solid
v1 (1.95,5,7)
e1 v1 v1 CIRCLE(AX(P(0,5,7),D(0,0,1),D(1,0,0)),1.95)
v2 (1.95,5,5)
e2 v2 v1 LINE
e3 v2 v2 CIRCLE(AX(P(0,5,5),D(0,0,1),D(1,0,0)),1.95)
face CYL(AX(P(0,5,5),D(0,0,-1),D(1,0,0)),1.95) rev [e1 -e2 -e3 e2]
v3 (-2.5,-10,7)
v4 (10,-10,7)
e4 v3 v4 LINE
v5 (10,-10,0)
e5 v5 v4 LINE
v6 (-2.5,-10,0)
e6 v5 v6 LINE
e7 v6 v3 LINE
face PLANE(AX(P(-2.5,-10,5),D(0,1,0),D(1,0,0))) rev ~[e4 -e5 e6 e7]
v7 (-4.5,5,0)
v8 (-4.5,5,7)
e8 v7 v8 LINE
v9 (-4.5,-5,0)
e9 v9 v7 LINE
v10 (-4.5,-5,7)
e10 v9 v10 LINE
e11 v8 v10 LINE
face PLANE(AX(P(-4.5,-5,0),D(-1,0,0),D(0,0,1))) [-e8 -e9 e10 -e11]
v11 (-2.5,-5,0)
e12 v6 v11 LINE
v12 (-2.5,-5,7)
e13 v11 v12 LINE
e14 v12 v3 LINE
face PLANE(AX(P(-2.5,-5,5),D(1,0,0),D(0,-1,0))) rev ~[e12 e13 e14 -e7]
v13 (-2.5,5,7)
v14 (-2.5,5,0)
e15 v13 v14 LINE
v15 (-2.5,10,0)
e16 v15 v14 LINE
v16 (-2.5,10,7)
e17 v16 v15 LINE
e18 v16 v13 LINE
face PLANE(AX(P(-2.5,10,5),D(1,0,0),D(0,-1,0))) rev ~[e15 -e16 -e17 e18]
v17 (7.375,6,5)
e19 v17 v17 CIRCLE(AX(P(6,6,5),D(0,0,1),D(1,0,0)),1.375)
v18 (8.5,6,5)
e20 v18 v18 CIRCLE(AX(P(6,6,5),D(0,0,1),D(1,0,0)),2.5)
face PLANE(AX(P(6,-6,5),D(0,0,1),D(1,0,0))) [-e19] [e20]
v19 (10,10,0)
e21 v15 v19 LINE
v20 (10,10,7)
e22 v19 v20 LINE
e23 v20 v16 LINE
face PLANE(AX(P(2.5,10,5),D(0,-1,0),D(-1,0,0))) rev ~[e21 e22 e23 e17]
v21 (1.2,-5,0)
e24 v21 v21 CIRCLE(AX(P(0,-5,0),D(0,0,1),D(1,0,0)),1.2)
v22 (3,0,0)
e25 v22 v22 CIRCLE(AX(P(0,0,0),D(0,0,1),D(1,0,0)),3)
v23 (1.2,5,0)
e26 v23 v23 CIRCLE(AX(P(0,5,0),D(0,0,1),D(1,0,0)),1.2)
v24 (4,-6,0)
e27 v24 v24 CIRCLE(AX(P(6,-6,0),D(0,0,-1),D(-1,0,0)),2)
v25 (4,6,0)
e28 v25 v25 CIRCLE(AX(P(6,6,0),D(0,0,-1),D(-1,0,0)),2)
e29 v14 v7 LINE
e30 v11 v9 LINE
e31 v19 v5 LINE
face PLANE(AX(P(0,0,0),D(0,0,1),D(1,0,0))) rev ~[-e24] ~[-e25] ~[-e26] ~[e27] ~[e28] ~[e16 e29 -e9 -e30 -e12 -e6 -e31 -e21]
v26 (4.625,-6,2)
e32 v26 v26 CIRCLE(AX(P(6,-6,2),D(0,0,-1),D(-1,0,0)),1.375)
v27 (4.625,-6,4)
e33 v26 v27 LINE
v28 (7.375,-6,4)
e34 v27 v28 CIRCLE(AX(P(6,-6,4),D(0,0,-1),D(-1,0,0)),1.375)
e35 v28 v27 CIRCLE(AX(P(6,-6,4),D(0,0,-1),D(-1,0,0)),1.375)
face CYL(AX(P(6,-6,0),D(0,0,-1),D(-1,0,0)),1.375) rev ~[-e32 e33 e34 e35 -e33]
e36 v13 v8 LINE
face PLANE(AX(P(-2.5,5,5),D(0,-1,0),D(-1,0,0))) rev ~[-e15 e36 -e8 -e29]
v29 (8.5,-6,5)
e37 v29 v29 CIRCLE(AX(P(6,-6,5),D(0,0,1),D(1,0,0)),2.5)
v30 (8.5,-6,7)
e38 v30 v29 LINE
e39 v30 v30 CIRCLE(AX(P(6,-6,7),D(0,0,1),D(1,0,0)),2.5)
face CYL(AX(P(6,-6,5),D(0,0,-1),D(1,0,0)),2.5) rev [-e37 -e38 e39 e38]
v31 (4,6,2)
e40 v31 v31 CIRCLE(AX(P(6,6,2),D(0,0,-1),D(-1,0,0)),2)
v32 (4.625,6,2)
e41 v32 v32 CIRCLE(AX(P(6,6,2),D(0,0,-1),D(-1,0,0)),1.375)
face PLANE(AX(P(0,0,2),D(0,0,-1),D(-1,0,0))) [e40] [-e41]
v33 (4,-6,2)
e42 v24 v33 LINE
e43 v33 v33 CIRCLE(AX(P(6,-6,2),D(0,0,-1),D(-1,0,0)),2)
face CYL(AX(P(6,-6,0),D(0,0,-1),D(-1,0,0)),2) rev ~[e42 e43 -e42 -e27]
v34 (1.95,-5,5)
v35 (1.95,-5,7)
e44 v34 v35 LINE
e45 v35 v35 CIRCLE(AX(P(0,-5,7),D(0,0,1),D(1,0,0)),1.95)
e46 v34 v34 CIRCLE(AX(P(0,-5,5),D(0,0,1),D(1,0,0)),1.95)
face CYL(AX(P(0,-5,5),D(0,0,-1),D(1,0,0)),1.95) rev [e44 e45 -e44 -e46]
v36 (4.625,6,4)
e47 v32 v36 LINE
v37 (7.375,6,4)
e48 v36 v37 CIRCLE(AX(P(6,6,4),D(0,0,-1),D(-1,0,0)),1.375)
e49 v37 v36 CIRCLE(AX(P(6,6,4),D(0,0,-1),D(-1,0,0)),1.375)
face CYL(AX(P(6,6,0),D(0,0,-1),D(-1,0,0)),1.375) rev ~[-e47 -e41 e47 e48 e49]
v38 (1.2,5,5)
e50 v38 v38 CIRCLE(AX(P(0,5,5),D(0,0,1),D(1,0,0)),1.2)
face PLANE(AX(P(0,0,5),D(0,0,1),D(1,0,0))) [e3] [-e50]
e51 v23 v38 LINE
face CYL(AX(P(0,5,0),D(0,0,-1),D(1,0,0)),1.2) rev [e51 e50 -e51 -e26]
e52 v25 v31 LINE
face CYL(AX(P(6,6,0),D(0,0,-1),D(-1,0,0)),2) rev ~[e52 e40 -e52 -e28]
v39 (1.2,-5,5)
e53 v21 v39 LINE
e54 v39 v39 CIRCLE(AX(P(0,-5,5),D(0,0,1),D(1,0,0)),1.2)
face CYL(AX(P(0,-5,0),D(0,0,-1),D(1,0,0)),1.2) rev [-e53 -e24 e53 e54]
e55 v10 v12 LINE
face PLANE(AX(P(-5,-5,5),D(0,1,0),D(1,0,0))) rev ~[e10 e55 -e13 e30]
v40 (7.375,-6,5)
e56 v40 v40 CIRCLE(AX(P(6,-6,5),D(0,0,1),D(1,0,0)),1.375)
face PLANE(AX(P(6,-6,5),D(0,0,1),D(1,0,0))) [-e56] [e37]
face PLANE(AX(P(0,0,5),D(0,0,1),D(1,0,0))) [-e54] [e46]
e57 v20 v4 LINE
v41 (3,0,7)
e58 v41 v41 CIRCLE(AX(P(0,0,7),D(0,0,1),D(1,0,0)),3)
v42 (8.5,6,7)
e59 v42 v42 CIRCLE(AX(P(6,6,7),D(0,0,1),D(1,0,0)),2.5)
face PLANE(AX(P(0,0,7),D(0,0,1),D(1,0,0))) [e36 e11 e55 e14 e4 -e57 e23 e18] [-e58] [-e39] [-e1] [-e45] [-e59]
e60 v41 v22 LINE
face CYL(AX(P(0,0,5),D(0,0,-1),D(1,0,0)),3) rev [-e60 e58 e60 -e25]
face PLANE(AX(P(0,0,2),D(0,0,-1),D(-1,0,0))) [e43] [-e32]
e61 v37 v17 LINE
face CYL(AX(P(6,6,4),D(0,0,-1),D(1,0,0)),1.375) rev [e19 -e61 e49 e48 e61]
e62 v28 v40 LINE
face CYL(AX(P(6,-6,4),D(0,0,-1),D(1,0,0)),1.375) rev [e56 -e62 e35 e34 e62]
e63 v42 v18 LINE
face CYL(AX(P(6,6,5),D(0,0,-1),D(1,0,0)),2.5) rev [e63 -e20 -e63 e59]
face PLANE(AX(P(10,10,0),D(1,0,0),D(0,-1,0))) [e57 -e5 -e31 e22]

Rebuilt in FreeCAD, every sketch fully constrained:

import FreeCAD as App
import Part
import Sketcher

V = App.Vector


def add_polygon(sketch, points):
    """Adds a closed chain of lines whose ends are joined by coincident constraints."""
    first, n = sketch.GeometryCount, len(points)
    for a, b in zip(points, points[1:] + points[:1]):
        sketch.addGeometry(Part.LineSegment(App.Vector(*a, 0), App.Vector(*b, 0)), False)
    for i in range(n):
        sketch.addConstraint(Sketcher.Constraint("Coincident", first + i, 2, first + (i + 1) % n, 1))

doc = App.newDocument("Part")
body = doc.addObject("PartDesign::Body", "Body")

# Sketch on XY plane
sketch1 = doc.addObject("Sketcher::SketchObject", "Sketch")
body.addObject(sketch1)
sketch1.AttachmentSupport = (doc.XY_Plane, [""])
sketch1.MapMode = "FlatFace"
add_polygon(sketch1, [(-10, -10), (10, -10), (10, 10), (-10, 10)])  # lines 0-3
sketch1.addGeometry(Part.Circle(V(0, -5, 0), V(0, 0, 1), 1.2), False)  # 4
sketch1.addGeometry(Part.Circle(V(0, 0, 0), V(0, 0, 1), 3), False)  # 5
sketch1.addGeometry(Part.Circle(V(0, 5, 0), V(0, 0, 1), 1.2), False)  # 6
sketch1.addConstraint([
    Sketcher.Constraint("Horizontal", 0),
    Sketcher.Constraint("Vertical", 1),
    Sketcher.Constraint("Horizontal", 2),
    Sketcher.Constraint("Vertical", 3),
    Sketcher.Constraint("Coincident", 5, 3, -1, 1),
    Sketcher.Constraint("Equal", 4, 6),
    Sketcher.Constraint("Symmetric", 4, 3, 6, 3, -1, 1),
    Sketcher.Constraint("Symmetric", 0, 2, 2, 2, -1, 1),
    Sketcher.Constraint("PointOnObject", 4, 3, -2),
    Sketcher.Constraint("Equal", 2, 1),
    Sketcher.Constraint("Diameter", 5, 6.0),
    Sketcher.Constraint("Diameter", 4, 2.4),
    Sketcher.Constraint("DistanceY", 4, 3, -1, 1, 5.0),
    Sketcher.Constraint("DistanceX", -1, 1, 0, 2, 10.0),
])
pad1 = doc.addObject("PartDesign::Pad", "Pad")
body.addObject(pad1)
pad1.Profile = sketch1
pad1.Length = 5

# Sketch on XY plane
sketch2 = doc.addObject("Sketcher::SketchObject", "Sketch001")
body.addObject(sketch2)
sketch2.AttachmentSupport = (doc.XY_Plane, [""])
sketch2.MapMode = "FlatFace"
sketch2.AttachmentOffset = App.Placement(V(0, 0, 5), App.Rotation())
sketch2.addGeometry([
    Part.Circle(V(6, -6, 0), V(0, 0, 1), 2.5),
    Part.Circle(V(6, 6, 0), V(0, 0, 1), 2.5),
], False)
sketch2.addConstraint([
    Sketcher.Constraint("Equal", 0, 1),
    Sketcher.Constraint("Symmetric", 0, 3, 1, 3, -1),
    Sketcher.Constraint("Diameter", 0, 5.0),
    Sketcher.Constraint("DistanceX", -1, 1, 0, 3, 6.0),
    Sketcher.Constraint("DistanceY", 0, 3, -1, 1, 6.0),
])
pocket1 = doc.addObject("PartDesign::Pocket", "Pocket")
body.addObject(pocket1)
pocket1.Profile = sketch2
pocket1.Length = 1

# Sketch on XY plane
sketch3 = doc.addObject("Sketcher::SketchObject", "Sketch002")
body.addObject(sketch3)
sketch3.AttachmentSupport = (doc.XY_Plane, [""])
sketch3.MapMode = "FlatFace"
sketch3.addGeometry([
    Part.Circle(V(6, 6, 0), V(0, 0, 1), 1.4),
    Part.Circle(V(6, -6, 0), V(0, 0, 1), 1.4),
], False)
sketch3.addConstraint([
    Sketcher.Constraint("Equal", 0, 1),
    Sketcher.Constraint("Symmetric", 0, 3, 1, 3, -1),
    Sketcher.Constraint("Diameter", 0, 2.75),
    Sketcher.Constraint("DistanceX", -1, 1, 0, 3, 6.0),
    Sketcher.Constraint("DistanceY", -1, 1, 0, 3, 6.0),
])
pocket2 = doc.addObject("PartDesign::Pocket", "Pocket001")
body.addObject(pocket2)
pocket2.Profile = sketch3
pocket2.Length = 5
pocket2.Reversed = True

# Sketch on XY plane
sketch4 = doc.addObject("Sketcher::SketchObject", "Sketch003")
body.addObject(sketch4)
sketch4.AttachmentSupport = (doc.XY_Plane, [""])
sketch4.MapMode = "FlatFace"
sketch4.AttachmentOffset = App.Placement(V(0, 0, 5), App.Rotation())
add_polygon(sketch4, [(10, 10), (2.5, 10), (2.5, 2.5), (5, 2.5), (5, -2.5), (2.5, -2.5), (2.5, -10), (10, -10)])  # lines 0-7
sketch4.addGeometry(Part.Circle(V(6, 6, 0), V(0, 0, 1), 2.5), False)  # 8
sketch4.addGeometry(Part.Circle(V(6, -6, 0), V(0, 0, 1), 2.5), False)  # 9
sketch4.addConstraint([
    Sketcher.Constraint("Horizontal", 0),
    Sketcher.Constraint("Vertical", 1),
    Sketcher.Constraint("Horizontal", 2),
    Sketcher.Constraint("Vertical", 3),
    Sketcher.Constraint("Horizontal", 4),
    Sketcher.Constraint("Vertical", 5),
    Sketcher.Constraint("Horizontal", 6),
    Sketcher.Constraint("Vertical", 7),
    Sketcher.Constraint("Equal", 8, 9),
    Sketcher.Constraint("Symmetric", 8, 3, 9, 3, -1),
    Sketcher.Constraint("Symmetric", 1, 2, 4, 2, -1),
    Sketcher.Constraint("Equal", 6, 1),
    Sketcher.Constraint("Equal", 1, 5),
    Sketcher.Constraint("Diameter", 8, 5.0),
    Sketcher.Constraint("DistanceY", 3, 2, 3, 1, 5.0),
    Sketcher.Constraint("DistanceX", 0, 2, 0, 1, 7.5),
    Sketcher.Constraint("DistanceX", -1, 1, 2, 2, 5.0),
    Sketcher.Constraint("DistanceX", 3, 2, 6, 2, 5.0),
    Sketcher.Constraint("DistanceX", -1, 1, 8, 3, 6.0),
    Sketcher.Constraint("DistanceY", -1, 1, 8, 3, 6.0),
])
pad2 = doc.addObject("PartDesign::Pad", "Pad001")
body.addObject(pad2)
pad2.Profile = sketch4
pad2.Length = 2

# Sketch on XY plane
sketch5 = doc.addObject("Sketcher::SketchObject", "Sketch004")
body.addObject(sketch5)
sketch5.AttachmentSupport = (doc.XY_Plane, [""])
sketch5.MapMode = "FlatFace"
sketch5.addGeometry([
    Part.Circle(V(6, 6, 0), V(0, 0, 1), 2),
    Part.Circle(V(6, -6, 0), V(0, 0, 1), 2),
], False)
sketch5.addConstraint([
    Sketcher.Constraint("Equal", 0, 1),
    Sketcher.Constraint("Symmetric", 0, 3, 1, 3, -1),
    Sketcher.Constraint("Diameter", 0, 4.0),
    Sketcher.Constraint("DistanceX", -1, 1, 0, 3, 6.0),
    Sketcher.Constraint("DistanceY", -1, 1, 0, 3, 6.0),
])
pocket3 = doc.addObject("PartDesign::Pocket", "Pocket002")
body.addObject(pocket3)
pocket3.Profile = sketch5
pocket3.Length = 2
pocket3.Reversed = True

# Sketch on XY plane
sketch6 = doc.addObject("Sketcher::SketchObject", "Sketch005")
body.addObject(sketch6)
sketch6.AttachmentSupport = (doc.XY_Plane, [""])
sketch6.MapMode = "FlatFace"
add_polygon(sketch6, [(-2.5, 10), (-2.5, 5), (-5, 5), (-5, -5), (-2.5, -5), (-2.5, -10), (-10, -10), (-10, 10)])  # lines 0-7
sketch6.addConstraint([
    Sketcher.Constraint("Vertical", 0),
    Sketcher.Constraint("Horizontal", 1),
    Sketcher.Constraint("Vertical", 2),
    Sketcher.Constraint("Horizontal", 3),
    Sketcher.Constraint("Vertical", 4),
    Sketcher.Constraint("Horizontal", 5),
    Sketcher.Constraint("Vertical", 6),
    Sketcher.Constraint("Horizontal", 7),
    Sketcher.Constraint("Symmetric", 0, 2, 3, 2, -1),
    Sketcher.Constraint("Equal", 0, 4),
    Sketcher.Constraint("DistanceY", 0, 2, 0, 1, 5.0),
    Sketcher.Constraint("DistanceX", 1, 2, 1, 1, 2.5),
    Sketcher.Constraint("DistanceY", -1, 1, 0, 2, 5.0),
    Sketcher.Constraint("DistanceX", 1, 2, -1, 1, 5.0),
    Sketcher.Constraint("DistanceX", 5, 2, 2, 2, 5.0),
])
pocket4 = doc.addObject("PartDesign::Pocket", "Pocket003")
body.addObject(pocket4)
pocket4.Profile = sketch6
pocket4.Length = 10
pocket4.Reversed = True

# Sketch on XY plane
sketch7 = doc.addObject("Sketcher::SketchObject", "Sketch006")
body.addObject(sketch7)
sketch7.AttachmentSupport = (doc.XY_Plane, [""])
sketch7.MapMode = "FlatFace"
sketch7.AttachmentOffset = App.Placement(V(0, 0, 4), App.Rotation())
sketch7.addGeometry([
    Part.Circle(V(6, -6, 0), V(0, 0, 1), 2.5),
    Part.Circle(V(6, -6, 0), V(0, 0, 1), 1.4),
    Part.Circle(V(6, 6, 0), V(0, 0, 1), 2.5),
    Part.Circle(V(6, 6, 0), V(0, 0, 1), 1.4),
], False)
sketch7.addConstraint([
    Sketcher.Constraint("Coincident", 1, 3, 0, 3),
    Sketcher.Constraint("Coincident", 3, 3, 2, 3),
    Sketcher.Constraint("Equal", 0, 2),
    Sketcher.Constraint("Equal", 1, 3),
    Sketcher.Constraint("Symmetric", 0, 3, 2, 3, -1),
    Sketcher.Constraint("Diameter", 0, 5.0),
    Sketcher.Constraint("Diameter", 1, 2.75),
    Sketcher.Constraint("DistanceX", -1, 1, 0, 3, 6.0),
    Sketcher.Constraint("DistanceY", 0, 3, -1, 1, 6.0),
])
pad3 = doc.addObject("PartDesign::Pad", "Pad002")
body.addObject(pad3)
pad3.Profile = sketch7
pad3.Length = 1

# Sketch on XY plane
sketch8 = doc.addObject("Sketcher::SketchObject", "Sketch007")
body.addObject(sketch8)
sketch8.AttachmentSupport = (doc.XY_Plane, [""])
sketch8.MapMode = "FlatFace"
sketch8.AttachmentOffset = App.Placement(V(0, 0, 5), App.Rotation())
add_polygon(sketch8, [(-5, -5), (-2.5, -5), (-2.5, -10), (2.5, -10), (2.5, -2.5), (5, -2.5), (5, 2.5), (2.5, 2.5), (2.5, 10), (-2.5, 10), (-2.5, 5), (-5, 5)])  # lines 0-11
sketch8.addGeometry(Part.Circle(V(0, -5, 0), V(0, 0, 1), 1.9), False)  # 12
sketch8.addGeometry(Part.Circle(V(0, 0, 0), V(0, 0, 1), 3), False)  # 13
sketch8.addGeometry(Part.Circle(V(0, 5, 0), V(0, 0, 1), 1.9), False)  # 14
sketch8.addConstraint([
    Sketcher.Constraint("Horizontal", 0),
    Sketcher.Constraint("Vertical", 1),
    Sketcher.Constraint("Horizontal", 2),
    Sketcher.Constraint("Vertical", 3),
    Sketcher.Constraint("Horizontal", 4),
    Sketcher.Constraint("Vertical", 5),
    Sketcher.Constraint("Horizontal", 6),
    Sketcher.Constraint("Vertical", 7),
    Sketcher.Constraint("Horizontal", 8),
    Sketcher.Constraint("Vertical", 9),
    Sketcher.Constraint("Horizontal", 10),
    Sketcher.Constraint("Vertical", 11),
    Sketcher.Constraint("Coincident", 13, 3, -1, 1),
    Sketcher.Constraint("Equal", 12, 14),
    Sketcher.Constraint("Symmetric", 12, 3, 14, 3, -1, 1),
    Sketcher.Constraint("Symmetric", 1, 2, 7, 2, -1, 1),
    Sketcher.Constraint("Symmetric", 3, 2, 6, 2, -1),
    Sketcher.Constraint("Symmetric", 0, 2, 9, 2, -1),
    Sketcher.Constraint("PointOnObject", 12, 3, -2),
    Sketcher.Constraint("Horizontal", 12, 3, 0, 2),
    Sketcher.Constraint("Equal", 0, 4),
    Sketcher.Constraint("Equal", 8, 1),
    Sketcher.Constraint("Equal", 1, 5),
    Sketcher.Constraint("Diameter", 12, 3.9),
    Sketcher.Constraint("Diameter", 13, 6.0),
    Sketcher.Constraint("DistanceX", 2, 1, 2, 2, 5.0),
    Sketcher.Constraint("DistanceY", 11, 2, 11, 1, 10.0),
    Sketcher.Constraint("DistanceX", 0, 1, 0, 2, 2.5),
])
pad4 = doc.addObject("PartDesign::Pad", "Pad003")
body.addObject(pad4)
pad4.Profile = sketch8
pad4.Length = 2

# Sketch on YZ plane
sketch9 = doc.addObject("Sketcher::SketchObject", "Sketch008")
body.addObject(sketch9)
sketch9.AttachmentSupport = (doc.YZ_Plane, [""])
sketch9.MapMode = "FlatFace"
sketch9.AttachmentOffset = App.Placement(V(0, 0, -5), App.Rotation())
add_polygon(sketch9, [(5, 7), (5, 0), (-5, 0), (-5, 7)])  # lines 0-3
sketch9.addConstraint([
    Sketcher.Constraint("Vertical", 0),
    Sketcher.Constraint("Horizontal", 1),
    Sketcher.Constraint("Vertical", 2),
    Sketcher.Constraint("Horizontal", 3),
    Sketcher.Constraint("Symmetric", 0, 2, 1, 2, -1, 1),
    Sketcher.Constraint("DistanceX", 1, 2, 1, 1, 10.0),
    Sketcher.Constraint("DistanceY", 0, 2, 0, 1, 7.0),
])
pocket5 = doc.addObject("PartDesign::Pocket", "Pocket004")
body.addObject(pocket5)
pocket5.Profile = sketch9
pocket5.Length = 0.5
pocket5.Reversed = True

doc.recompute()
